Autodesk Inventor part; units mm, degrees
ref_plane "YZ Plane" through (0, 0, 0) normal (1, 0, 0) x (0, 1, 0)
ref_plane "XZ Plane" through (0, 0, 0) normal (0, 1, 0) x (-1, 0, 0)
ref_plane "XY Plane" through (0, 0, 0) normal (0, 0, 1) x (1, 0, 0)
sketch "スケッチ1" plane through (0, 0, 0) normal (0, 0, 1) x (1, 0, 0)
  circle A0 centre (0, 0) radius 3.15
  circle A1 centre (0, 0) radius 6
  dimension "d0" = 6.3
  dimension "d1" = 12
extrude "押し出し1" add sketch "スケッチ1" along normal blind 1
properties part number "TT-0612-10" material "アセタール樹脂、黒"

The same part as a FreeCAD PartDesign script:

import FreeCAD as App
import Part
import Sketcher

V = App.Vector

doc = App.newDocument("Part")
body = doc.addObject("PartDesign::Body", "Body")

# Sketch on XY plane
sketch1 = doc.addObject("Sketcher::SketchObject", "Sketch")
body.addObject(sketch1)
sketch1.AttachmentSupport = (doc.XY_Plane, [""])
sketch1.MapMode = "FlatFace"
sketch1.addGeometry([
    Part.Circle(V(0, 0, 0), V(0, 0, 1), 6),
    Part.Circle(V(0, 0, 0), V(0, 0, 1), 3.1),
], False)
sketch1.addConstraint([
    Sketcher.Constraint("Coincident", 0, 3, -1, 1),
    Sketcher.Constraint("Coincident", 1, 3, -1, 1),
    Sketcher.Constraint("Diameter", 0, 12.0),
    Sketcher.Constraint("Diameter", 1, 6.3),
])
pad1 = doc.addObject("PartDesign::Pad", "Pad")
body.addObject(pad1)
pad1.Profile = sketch1
pad1.Length = 1

doc.recompute()
